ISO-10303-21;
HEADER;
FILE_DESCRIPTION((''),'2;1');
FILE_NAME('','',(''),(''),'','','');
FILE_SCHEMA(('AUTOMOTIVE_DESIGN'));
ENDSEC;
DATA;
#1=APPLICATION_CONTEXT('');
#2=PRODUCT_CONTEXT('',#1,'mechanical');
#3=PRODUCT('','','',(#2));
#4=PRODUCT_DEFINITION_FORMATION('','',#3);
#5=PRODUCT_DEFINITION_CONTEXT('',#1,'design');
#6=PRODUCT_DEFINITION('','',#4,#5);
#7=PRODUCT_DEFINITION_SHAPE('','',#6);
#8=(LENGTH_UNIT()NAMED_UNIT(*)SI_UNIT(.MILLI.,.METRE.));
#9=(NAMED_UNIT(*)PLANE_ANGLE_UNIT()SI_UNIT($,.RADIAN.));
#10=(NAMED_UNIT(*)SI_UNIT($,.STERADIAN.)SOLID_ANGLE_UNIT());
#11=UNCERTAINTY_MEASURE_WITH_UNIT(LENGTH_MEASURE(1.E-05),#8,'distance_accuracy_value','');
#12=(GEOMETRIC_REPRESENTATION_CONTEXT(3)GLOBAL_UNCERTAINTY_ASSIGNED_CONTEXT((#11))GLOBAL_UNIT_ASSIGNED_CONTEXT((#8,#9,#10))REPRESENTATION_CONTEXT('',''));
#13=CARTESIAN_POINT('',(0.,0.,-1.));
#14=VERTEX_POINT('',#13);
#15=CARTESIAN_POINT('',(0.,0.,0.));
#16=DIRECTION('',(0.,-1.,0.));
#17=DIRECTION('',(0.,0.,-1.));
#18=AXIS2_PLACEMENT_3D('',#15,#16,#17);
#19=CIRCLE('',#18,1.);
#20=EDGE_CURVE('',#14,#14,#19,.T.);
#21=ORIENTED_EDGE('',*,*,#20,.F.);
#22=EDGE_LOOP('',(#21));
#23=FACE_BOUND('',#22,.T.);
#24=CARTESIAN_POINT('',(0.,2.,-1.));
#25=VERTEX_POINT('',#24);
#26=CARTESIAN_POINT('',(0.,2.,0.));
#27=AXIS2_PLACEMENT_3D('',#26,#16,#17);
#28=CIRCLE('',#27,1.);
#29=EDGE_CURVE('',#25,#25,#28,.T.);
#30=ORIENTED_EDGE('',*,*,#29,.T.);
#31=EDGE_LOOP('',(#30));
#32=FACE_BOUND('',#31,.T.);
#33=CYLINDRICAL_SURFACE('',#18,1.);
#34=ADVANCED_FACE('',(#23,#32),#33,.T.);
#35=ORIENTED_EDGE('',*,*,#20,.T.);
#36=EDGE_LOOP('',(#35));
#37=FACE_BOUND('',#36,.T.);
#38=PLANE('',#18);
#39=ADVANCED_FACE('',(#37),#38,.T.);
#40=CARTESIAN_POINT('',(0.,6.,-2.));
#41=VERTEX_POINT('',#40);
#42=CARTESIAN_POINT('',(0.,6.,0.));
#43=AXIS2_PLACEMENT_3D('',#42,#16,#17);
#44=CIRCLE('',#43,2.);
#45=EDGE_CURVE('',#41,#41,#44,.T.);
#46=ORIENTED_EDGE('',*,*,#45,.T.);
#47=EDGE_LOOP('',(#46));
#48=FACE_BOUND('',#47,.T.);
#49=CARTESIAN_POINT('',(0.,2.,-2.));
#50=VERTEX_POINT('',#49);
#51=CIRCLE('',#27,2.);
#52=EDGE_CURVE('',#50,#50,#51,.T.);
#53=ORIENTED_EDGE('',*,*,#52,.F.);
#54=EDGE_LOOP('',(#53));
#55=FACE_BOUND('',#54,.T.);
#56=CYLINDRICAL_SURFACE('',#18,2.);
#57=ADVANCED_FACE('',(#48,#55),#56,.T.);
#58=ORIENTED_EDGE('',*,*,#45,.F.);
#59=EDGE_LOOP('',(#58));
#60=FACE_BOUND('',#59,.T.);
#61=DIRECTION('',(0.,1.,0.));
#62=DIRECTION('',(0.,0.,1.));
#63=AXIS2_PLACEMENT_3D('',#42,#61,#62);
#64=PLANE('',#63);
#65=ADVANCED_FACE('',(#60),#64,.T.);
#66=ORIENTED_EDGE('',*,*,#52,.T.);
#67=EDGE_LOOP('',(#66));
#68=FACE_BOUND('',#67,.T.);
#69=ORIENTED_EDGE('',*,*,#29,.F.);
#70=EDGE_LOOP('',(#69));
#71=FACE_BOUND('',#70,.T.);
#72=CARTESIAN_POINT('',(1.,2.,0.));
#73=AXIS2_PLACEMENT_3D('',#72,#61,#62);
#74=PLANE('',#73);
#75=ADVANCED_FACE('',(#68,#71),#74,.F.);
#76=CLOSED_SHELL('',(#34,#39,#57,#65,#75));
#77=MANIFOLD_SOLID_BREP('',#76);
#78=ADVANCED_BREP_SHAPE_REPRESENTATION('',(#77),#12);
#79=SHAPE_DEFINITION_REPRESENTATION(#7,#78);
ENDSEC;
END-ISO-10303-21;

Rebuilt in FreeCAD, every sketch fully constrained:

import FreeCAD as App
import Part
import Sketcher
Q = App.Units.Quantity


def add_polygon(sketch, points):
    """Adds a closed chain of lines whose ends are joined by coincident constraints."""
    first, n = sketch.GeometryCount, len(points)
    for a, b in zip(points, points[1:] + points[:1]):
        sketch.addGeometry(Part.LineSegment(App.Vector(*a, 0), App.Vector(*b, 0)), False)
    for i in range(n):
        sketch.addConstraint(Sketcher.Constraint("Coincident", first + i, 2, first + (i + 1) % n, 1))

doc = App.newDocument("Part")
params = doc.addObject("Spreadsheet::Sheet", "Params")
for row, (alias, value) in enumerate([
    ("sketch1_width", "2 mm"),
    ("sketch1_height", "6 mm"),
    ("revolution_angle", "360 deg"),
    ("sketch2_width", "1 mm"),
    ("sketch2_height", "2 mm"),
    ("groove_angle", "360 deg"),
], start=1):
    params.set(f"A{row}", alias)
    params.set(f"B{row}", "=" + value)
    params.setAlias(f"B{row}", alias)

body = doc.addObject("PartDesign::Body", "Body")

# Sketch on XY plane
sketch1 = body.newObject("Sketcher::SketchObject", "Sketch")
sketch1.AttachmentSupport = (doc.getObject("XY_Plane"), [""])
sketch1.MapMode = "FlatFace"
add_polygon(sketch1, [(0, 6), (0, 0), (2, 0), (2, 6)])  # lines 0-3
sketch1.addConstraint([
    Sketcher.Constraint("Vertical", 0),
    Sketcher.Constraint("Horizontal", 1),
    Sketcher.Constraint("Vertical", 2),
    Sketcher.Constraint("Horizontal", 3),
    Sketcher.Constraint("Coincident", 0, 2, -1, 1),
    Sketcher.Constraint("DistanceX", 1, 1, 1, 2, Q("2 mm")),
    Sketcher.Constraint("DistanceY", 0, 2, 0, 1, Q("6 mm")),
])
sketch1.setExpression("Constraints[9]", "Params.sketch1_width")
sketch1.setExpression("Constraints[10]", "Params.sketch1_height")
revolution = body.newObject("PartDesign::Revolution", "Revolution")
revolution.Profile = sketch1
revolution.ReferenceAxis = (sketch1, ["V_Axis"])
revolution.setExpression("Angle", "Params.revolution_angle")

# Sketch on XY plane
sketch2 = body.newObject("Sketcher::SketchObject", "Sketch001")
sketch2.AttachmentSupport = (doc.getObject("XY_Plane"), [""])
sketch2.MapMode = "FlatFace"
add_polygon(sketch2, [(1, 2), (1, 0), (2, 0), (2, 2)])  # lines 0-3
sketch2.addConstraint([
    Sketcher.Constraint("Vertical", 0),
    Sketcher.Constraint("Horizontal", 1),
    Sketcher.Constraint("Vertical", 2),
    Sketcher.Constraint("Horizontal", 3),
    Sketcher.Constraint("PointOnObject", 0, 2, -1),
    Sketcher.Constraint("DistanceX", 1, 1, 1, 2, Q("1 mm")),
    Sketcher.Constraint("DistanceY", 0, 2, 0, 1, Q("2 mm")),
    Sketcher.Constraint("DistanceX", -1, 1, 0, 2, Q("1 mm")),
])
sketch2.setExpression("Constraints[9]", "Params.sketch2_width")
sketch2.setExpression("Constraints[10]", "Params.sketch2_height")
groove = body.newObject("PartDesign::Groove", "Groove")
groove.Profile = sketch2
groove.ReferenceAxis = (sketch2, ["V_Axis"])
groove.setExpression("Angle", "Params.groove_angle")

doc.recompute()
